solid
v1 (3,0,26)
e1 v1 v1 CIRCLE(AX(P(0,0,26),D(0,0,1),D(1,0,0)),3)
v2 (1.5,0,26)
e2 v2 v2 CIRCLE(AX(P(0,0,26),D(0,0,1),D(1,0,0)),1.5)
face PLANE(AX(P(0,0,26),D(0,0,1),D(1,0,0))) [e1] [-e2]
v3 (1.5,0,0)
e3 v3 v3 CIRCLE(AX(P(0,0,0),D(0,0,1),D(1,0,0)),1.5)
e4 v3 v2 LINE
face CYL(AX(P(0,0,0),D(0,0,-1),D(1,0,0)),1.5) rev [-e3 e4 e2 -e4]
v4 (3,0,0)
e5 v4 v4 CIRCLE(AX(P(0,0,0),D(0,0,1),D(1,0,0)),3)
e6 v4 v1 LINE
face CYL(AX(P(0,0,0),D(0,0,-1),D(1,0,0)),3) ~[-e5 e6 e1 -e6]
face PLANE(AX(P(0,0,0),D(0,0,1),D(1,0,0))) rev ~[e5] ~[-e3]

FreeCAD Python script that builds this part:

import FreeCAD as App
import Part
import Sketcher

V = App.Vector

doc = App.newDocument("Part")
body = doc.addObject("PartDesign::Body", "Body")

# Sketch on XY plane
sketch1 = body.newObject("Sketcher::SketchObject", "Sketch")
sketch1.AttachmentSupport = (doc.getObject("XY_Plane"), [""])
sketch1.MapMode = "FlatFace"
sketch1.addGeometry([
    Part.Circle(V(0, 0, 0), V(0, 0, 1), 3),
    Part.Circle(V(0, 0, 0), V(0, 0, 1), 1.5),
], False)
sketch1.addConstraint([
    Sketcher.Constraint("Coincident", 0, 3, -1, 1),
    Sketcher.Constraint("Coincident", 1, 3, -1, 1),
    Sketcher.Constraint("Diameter", 0, 6.0),
    Sketcher.Constraint("Diameter", 1, 3.0),
])
pad1 = body.newObject("PartDesign::Pad", "Pad")
pad1.Profile = sketch1
pad1.Length = 26

doc.recompute()
